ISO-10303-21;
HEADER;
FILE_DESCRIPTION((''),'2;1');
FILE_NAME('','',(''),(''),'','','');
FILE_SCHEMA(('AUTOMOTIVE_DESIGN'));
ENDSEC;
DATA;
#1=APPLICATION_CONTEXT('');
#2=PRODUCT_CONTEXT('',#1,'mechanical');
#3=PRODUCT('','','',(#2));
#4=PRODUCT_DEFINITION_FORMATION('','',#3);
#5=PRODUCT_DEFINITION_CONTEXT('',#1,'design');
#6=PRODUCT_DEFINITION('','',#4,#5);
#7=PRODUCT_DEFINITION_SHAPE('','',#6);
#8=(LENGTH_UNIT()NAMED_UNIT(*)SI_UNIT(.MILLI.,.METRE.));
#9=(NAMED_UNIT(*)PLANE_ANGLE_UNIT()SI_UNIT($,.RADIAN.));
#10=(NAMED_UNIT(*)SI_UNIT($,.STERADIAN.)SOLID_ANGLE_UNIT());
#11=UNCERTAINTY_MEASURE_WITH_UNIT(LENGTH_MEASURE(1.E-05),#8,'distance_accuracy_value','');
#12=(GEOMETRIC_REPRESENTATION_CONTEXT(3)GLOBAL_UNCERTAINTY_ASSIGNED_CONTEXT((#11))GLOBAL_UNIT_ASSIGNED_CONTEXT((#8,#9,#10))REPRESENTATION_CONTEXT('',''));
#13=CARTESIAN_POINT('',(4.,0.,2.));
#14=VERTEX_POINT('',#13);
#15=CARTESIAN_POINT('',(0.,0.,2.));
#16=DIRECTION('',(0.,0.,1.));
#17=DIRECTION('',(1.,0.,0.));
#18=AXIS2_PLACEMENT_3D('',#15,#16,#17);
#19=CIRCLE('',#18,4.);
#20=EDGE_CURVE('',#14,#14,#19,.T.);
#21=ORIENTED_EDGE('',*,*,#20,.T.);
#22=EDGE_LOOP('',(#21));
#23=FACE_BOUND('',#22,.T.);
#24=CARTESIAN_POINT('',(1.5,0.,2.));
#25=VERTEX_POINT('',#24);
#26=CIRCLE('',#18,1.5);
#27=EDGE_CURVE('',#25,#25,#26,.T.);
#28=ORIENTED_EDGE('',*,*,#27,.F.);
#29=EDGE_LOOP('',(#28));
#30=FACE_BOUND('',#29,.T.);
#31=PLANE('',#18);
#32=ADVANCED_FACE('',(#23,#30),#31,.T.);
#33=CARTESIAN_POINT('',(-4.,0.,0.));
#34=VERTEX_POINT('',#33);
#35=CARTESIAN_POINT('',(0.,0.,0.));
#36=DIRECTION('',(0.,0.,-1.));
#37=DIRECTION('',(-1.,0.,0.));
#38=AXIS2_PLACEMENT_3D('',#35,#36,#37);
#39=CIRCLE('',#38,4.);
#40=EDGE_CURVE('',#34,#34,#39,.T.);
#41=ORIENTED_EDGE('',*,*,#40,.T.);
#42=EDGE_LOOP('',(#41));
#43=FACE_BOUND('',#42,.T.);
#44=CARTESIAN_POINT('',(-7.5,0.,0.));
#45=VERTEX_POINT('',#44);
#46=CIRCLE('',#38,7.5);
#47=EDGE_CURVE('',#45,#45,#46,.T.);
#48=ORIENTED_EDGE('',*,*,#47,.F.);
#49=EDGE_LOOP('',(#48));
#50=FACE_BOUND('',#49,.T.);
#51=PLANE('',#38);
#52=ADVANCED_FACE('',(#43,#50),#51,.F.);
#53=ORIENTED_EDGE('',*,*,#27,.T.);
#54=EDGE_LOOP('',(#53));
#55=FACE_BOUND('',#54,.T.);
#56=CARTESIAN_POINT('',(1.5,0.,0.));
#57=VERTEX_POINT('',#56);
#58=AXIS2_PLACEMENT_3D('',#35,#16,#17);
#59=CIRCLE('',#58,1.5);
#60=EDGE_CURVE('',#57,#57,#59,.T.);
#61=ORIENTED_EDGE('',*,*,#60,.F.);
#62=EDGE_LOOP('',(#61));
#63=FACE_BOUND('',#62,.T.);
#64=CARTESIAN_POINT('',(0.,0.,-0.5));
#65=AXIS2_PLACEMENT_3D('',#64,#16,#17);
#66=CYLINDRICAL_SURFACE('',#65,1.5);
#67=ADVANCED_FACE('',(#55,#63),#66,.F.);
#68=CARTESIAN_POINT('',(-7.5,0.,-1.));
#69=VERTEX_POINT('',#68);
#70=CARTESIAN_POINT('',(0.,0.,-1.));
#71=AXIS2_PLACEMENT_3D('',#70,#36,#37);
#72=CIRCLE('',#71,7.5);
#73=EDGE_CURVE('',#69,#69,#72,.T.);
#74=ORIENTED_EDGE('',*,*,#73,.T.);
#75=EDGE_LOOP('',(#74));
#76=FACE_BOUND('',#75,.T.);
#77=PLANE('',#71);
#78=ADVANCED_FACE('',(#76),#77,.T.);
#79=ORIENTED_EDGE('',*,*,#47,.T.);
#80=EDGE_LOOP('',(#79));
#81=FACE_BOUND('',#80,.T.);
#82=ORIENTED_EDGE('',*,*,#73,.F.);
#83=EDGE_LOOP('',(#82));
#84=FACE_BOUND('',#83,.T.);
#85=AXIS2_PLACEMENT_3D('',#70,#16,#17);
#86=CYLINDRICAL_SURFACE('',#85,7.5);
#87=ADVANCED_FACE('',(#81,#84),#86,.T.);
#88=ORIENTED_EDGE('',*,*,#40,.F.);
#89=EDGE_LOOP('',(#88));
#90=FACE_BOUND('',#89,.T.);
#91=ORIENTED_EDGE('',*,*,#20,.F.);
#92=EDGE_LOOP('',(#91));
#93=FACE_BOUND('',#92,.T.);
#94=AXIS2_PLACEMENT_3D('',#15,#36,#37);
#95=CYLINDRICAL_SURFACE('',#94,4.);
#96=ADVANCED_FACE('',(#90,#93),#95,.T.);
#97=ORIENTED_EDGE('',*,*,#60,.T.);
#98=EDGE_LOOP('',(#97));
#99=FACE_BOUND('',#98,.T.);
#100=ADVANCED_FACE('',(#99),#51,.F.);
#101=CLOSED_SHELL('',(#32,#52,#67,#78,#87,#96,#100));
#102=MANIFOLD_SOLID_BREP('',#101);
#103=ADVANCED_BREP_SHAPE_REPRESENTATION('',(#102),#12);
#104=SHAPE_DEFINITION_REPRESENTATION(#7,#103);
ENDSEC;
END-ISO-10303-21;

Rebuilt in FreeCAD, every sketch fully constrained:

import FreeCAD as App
import Part
import Sketcher

V = App.Vector
Q = App.Units.Quantity

doc = App.newDocument("Part")
body = doc.addObject("PartDesign::Body", "Body")

sketch1 = body.newObject("Sketcher::SketchObject", "Sketch")
sketch1.AttachmentSupport = (doc.getObject("XY_Plane"), [""])
sketch1.MapMode = "FlatFace"
sketch1.addGeometry(Part.Circle(V(0, 0, 0), V(0, 0, 1), 4), False)
sketch1.addConstraint([
    Sketcher.Constraint("Coincident", 0, 3, -1, 1),
    Sketcher.Constraint("Diameter", 0, Q("8 mm")),
])
pad1 = body.newObject("PartDesign::Pad", "Pad")
pad1.Profile = sketch1
pad1.Length = 2

sketch2 = body.newObject("Sketcher::SketchObject", "Sketch001")
sketch2.AttachmentSupport = (doc.getObject("XY_Plane"), [""])
sketch2.MapMode = "FlatFace"
sketch2.AttachmentOffset = App.Placement(V(0, 0, 2), App.Rotation())
sketch2.addGeometry(Part.Circle(V(0, 0, 0), V(0, 0, 1), 1.5), False)
sketch2.addConstraint([
    Sketcher.Constraint("Coincident", 0, 3, -1, 1),
    Sketcher.Constraint("Diameter", 0, Q("3 mm")),
])
pocket1 = body.newObject("PartDesign::Pocket", "Pocket")
pocket1.Profile = sketch2
pocket1.Length = 2.5

sketch3 = body.newObject("Sketcher::SketchObject", "Sketch002")
sketch3.AttachmentSupport = (doc.getObject("XY_Plane"), [""])
sketch3.MapMode = "FlatFace"
sketch3.addGeometry(Part.Circle(V(0, 0, 0), V(0, 0, 1), 7.5), False)
sketch3.addConstraint([
    Sketcher.Constraint("Coincident", 0, 3, -1, 1),
    Sketcher.Constraint("Diameter", 0, Q("15 mm")),
])
pad2 = body.newObject("PartDesign::Pad", "Pad001")
pad2.Profile = sketch3
pad2.Length = 1
pad2.Reversed = True

doc.recompute()
